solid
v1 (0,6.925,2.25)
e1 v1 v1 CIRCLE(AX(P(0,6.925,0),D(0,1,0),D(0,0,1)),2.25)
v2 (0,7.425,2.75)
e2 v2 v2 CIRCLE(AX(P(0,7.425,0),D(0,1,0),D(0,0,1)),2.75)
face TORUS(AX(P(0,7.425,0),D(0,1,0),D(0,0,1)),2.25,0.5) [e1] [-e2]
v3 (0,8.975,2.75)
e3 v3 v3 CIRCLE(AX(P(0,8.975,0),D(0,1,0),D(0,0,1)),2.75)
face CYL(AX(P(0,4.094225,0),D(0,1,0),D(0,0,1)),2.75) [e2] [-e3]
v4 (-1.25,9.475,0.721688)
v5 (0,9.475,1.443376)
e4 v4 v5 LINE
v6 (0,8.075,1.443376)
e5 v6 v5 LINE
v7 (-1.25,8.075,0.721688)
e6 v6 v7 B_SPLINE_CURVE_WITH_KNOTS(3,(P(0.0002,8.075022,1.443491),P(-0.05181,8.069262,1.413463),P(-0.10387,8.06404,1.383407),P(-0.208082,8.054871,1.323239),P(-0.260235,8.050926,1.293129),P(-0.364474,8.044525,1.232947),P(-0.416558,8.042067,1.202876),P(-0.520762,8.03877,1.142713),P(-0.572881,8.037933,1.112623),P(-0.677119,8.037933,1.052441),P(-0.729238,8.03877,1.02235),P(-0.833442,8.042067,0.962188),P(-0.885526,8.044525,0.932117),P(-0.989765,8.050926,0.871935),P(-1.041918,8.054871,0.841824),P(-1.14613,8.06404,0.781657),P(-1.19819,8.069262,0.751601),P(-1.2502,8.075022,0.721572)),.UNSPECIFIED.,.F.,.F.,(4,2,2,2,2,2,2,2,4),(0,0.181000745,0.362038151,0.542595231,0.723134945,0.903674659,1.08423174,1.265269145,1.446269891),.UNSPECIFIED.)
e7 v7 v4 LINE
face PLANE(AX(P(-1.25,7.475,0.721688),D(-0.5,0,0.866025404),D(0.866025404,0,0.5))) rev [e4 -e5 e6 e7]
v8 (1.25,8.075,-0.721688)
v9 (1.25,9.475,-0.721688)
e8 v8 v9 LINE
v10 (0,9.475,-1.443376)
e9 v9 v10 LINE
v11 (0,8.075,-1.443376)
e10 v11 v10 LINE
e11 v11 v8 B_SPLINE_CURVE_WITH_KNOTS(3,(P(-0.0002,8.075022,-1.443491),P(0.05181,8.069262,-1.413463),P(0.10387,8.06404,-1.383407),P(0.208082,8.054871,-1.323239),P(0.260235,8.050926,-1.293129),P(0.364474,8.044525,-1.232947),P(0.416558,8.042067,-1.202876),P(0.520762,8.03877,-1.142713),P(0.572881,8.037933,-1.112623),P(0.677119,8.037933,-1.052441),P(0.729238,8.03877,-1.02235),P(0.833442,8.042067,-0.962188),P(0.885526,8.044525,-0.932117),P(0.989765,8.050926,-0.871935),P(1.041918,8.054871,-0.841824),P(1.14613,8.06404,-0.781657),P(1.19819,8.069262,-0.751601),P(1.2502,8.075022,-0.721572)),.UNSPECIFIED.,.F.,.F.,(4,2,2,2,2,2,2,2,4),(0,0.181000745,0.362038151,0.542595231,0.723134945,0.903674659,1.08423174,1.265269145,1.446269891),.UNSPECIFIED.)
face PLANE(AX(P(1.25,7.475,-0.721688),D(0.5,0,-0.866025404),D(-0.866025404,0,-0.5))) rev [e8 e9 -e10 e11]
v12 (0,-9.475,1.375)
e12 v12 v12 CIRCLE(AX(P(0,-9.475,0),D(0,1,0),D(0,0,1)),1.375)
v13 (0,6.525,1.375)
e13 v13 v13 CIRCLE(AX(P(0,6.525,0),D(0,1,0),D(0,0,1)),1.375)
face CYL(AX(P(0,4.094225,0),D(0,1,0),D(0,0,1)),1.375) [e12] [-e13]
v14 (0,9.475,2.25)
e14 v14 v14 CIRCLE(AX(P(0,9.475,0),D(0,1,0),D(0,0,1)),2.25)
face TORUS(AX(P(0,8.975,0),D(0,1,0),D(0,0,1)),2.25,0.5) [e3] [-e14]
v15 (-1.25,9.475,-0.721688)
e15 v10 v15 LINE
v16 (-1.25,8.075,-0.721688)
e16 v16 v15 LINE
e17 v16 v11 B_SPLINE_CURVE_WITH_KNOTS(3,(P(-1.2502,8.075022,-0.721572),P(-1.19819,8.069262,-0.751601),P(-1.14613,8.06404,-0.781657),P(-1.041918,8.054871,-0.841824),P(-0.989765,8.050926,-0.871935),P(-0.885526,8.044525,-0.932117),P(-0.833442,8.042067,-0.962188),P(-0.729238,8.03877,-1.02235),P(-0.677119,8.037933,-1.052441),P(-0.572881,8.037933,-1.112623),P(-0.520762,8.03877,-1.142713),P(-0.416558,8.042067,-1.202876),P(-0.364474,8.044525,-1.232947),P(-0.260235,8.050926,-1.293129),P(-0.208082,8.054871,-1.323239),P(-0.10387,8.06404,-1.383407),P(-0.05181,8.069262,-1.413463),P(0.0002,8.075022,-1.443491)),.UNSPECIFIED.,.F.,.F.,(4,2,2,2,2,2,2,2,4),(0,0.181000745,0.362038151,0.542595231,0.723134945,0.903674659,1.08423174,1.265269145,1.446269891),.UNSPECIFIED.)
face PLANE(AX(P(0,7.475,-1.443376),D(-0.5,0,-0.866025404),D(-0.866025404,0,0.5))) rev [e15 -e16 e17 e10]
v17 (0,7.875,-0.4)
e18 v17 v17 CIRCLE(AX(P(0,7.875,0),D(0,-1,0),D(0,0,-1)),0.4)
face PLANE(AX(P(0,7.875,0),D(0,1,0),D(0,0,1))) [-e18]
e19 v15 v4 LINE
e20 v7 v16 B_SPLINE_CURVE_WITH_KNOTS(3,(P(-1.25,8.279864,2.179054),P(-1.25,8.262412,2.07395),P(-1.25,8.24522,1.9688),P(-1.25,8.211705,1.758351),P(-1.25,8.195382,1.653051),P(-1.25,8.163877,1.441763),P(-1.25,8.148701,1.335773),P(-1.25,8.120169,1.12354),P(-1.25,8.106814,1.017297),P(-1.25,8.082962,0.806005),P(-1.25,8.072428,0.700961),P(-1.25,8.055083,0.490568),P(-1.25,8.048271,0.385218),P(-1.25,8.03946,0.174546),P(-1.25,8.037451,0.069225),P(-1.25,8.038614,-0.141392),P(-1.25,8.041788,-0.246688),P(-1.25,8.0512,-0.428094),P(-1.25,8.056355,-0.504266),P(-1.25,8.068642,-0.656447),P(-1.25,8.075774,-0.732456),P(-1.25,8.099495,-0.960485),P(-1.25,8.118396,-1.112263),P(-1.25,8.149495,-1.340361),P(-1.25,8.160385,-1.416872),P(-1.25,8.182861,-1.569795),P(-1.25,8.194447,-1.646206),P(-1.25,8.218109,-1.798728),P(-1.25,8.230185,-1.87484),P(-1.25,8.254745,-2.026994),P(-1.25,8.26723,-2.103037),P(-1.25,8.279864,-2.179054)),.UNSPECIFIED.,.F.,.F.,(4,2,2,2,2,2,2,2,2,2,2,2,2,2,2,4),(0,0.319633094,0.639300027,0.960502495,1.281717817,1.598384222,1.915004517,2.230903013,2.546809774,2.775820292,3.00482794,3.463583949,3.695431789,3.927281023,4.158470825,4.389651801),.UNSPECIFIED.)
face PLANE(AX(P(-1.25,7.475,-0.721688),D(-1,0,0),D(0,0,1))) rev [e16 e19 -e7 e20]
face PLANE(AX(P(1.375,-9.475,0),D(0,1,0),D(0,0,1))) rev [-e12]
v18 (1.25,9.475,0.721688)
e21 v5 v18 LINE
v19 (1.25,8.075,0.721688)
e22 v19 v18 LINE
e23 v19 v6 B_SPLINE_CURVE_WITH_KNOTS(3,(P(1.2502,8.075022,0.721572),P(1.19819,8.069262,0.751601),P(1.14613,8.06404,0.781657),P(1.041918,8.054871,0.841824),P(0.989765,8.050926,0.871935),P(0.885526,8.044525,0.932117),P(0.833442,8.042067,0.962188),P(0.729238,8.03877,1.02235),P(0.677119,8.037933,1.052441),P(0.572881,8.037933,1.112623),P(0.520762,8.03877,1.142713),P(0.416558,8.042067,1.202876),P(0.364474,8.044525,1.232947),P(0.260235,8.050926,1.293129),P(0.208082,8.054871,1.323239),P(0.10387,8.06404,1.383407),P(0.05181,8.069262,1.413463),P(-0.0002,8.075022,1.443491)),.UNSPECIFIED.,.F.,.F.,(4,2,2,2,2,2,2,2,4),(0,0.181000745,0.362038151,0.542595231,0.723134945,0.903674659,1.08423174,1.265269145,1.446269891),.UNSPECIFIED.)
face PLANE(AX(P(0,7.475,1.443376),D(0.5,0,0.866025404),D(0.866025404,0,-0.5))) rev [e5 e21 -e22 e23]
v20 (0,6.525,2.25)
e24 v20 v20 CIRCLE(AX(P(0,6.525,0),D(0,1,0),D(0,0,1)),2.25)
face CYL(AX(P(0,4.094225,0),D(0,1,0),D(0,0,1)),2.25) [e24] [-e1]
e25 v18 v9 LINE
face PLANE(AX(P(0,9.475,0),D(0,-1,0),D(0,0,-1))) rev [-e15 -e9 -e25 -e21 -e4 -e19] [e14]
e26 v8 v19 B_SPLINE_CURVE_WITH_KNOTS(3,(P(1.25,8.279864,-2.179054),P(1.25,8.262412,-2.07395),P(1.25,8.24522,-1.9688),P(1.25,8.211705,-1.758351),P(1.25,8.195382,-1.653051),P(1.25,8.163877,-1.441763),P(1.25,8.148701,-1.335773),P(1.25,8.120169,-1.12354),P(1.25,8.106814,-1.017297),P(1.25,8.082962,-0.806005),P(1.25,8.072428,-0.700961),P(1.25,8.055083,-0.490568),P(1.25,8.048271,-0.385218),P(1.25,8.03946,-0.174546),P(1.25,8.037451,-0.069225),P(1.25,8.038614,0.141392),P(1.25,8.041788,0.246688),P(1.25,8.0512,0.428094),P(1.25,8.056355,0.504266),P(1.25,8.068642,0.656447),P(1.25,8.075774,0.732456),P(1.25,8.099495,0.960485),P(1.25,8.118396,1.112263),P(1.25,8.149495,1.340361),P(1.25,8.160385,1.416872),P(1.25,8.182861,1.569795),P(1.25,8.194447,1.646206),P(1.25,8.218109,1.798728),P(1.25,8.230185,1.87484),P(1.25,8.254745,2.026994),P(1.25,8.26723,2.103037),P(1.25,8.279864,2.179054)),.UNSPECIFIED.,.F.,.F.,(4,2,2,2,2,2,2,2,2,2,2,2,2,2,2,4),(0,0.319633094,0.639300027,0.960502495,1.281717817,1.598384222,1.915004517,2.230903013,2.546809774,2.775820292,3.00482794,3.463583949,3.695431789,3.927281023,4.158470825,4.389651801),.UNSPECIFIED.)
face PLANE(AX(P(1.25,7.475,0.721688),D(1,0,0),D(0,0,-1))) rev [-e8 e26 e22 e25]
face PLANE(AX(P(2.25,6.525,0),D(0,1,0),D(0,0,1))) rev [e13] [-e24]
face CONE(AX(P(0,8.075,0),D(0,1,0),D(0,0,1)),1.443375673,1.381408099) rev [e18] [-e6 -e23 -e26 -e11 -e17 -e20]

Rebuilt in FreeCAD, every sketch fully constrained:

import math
import FreeCAD as App
import Part
import Sketcher
Q = App.Units.Quantity


def add_polygon(sketch, points):
    """Adds a closed chain of lines whose ends are joined by coincident constraints."""
    first, n = sketch.GeometryCount, len(points)
    for a, b in zip(points, points[1:] + points[:1]):
        sketch.addGeometry(Part.LineSegment(App.Vector(*a, 0), App.Vector(*b, 0)), False)
    for i in range(n):
        sketch.addConstraint(Sketcher.Constraint("Coincident", first + i, 2, first + (i + 1) % n, 1))

doc = App.newDocument("Part")
body = doc.addObject("PartDesign::Body", "Body")

# Sketch on XY plane
sketch1 = doc.addObject("Sketcher::SketchObject", "Sketch")
body.addObject(sketch1)
sketch1.AttachmentSupport = (doc.XY_Plane, [""])
sketch1.MapMode = "FlatFace"
sketch1.addGeometry([
    Part.LineSegment(App.Vector(2.25, 9.475, 0), App.Vector(0, 9.475, 0)),  # 0
    Part.LineSegment(App.Vector(0, 9.475, 0), App.Vector(0, -9.475, 0)),  # 1
    Part.LineSegment(App.Vector(0, -9.475, 0), App.Vector(1.375, -9.475, 0)),  # 2
    Part.LineSegment(App.Vector(1.375, -9.475, 0), App.Vector(1.375, 6.525, 0)),  # 3
    Part.LineSegment(App.Vector(1.375, 6.525, 0), App.Vector(2.25, 6.525, 0)),  # 4
    Part.LineSegment(App.Vector(2.25, 6.525, 0), App.Vector(2.25, 6.925, 0)),  # 5
    Part.ArcOfCircle(Part.Circle(App.Vector(2.25, 7.425, 0), App.Vector(0, 0, 1), 0.5), math.radians(-90), math.radians(0)),  # 6
    Part.LineSegment(App.Vector(2.75, 7.425, 0), App.Vector(2.75, 8.975, 0)),  # 7
    Part.ArcOfCircle(Part.Circle(App.Vector(2.25, 8.975, 0), App.Vector(0, 0, 1), 0.5), math.radians(0), math.radians(90)),  # 8
], False)
sketch1.addConstraint([
    Sketcher.Constraint("Coincident", 0, 2, 1, 1),
    Sketcher.Constraint("Coincident", 1, 2, 2, 1),
    Sketcher.Constraint("Coincident", 2, 2, 3, 1),
    Sketcher.Constraint("Coincident", 3, 2, 4, 1),
    Sketcher.Constraint("Coincident", 4, 2, 5, 1),
    Sketcher.Constraint("Coincident", 5, 2, 6, 1),
    Sketcher.Constraint("Tangent", 6, 2, 7, 1),
    Sketcher.Constraint("Tangent", 7, 2, 8, 1),
    Sketcher.Constraint("Tangent", 8, 2, 0, 1),
    Sketcher.Constraint("Horizontal", 0),
    Sketcher.Constraint("Vertical", 1),
    Sketcher.Constraint("Horizontal", 2),
    Sketcher.Constraint("Vertical", 3),
    Sketcher.Constraint("Horizontal", 4),
    Sketcher.Constraint("Vertical", 5),
    Sketcher.Constraint("Vertical", 7),
    Sketcher.Constraint("Equal", 6, 8),
    Sketcher.Constraint("Symmetric", 0, 2, 1, 2, -1, 1),
    Sketcher.Constraint("Vertical", 8, 3, 4, 2),
    Sketcher.Constraint("Radius", 6, Q("0.5 mm")),
    Sketcher.Constraint("DistanceY", 3, 1, 3, 2, Q("16 mm")),
    Sketcher.Constraint("DistanceY", 5, 1, 5, 2, Q("0.4 mm")),
    Sketcher.Constraint("DistanceX", 0, 2, 0, 1, Q("2.25 mm")),
    Sketcher.Constraint("DistanceY", 1, 2, 1, 1, Q("18.95 mm")),
    Sketcher.Constraint("DistanceX", 2, 1, 2, 2, Q("1.375 mm")),
])
revolution = doc.addObject("PartDesign::Revolution", "Revolution")
body.addObject(revolution)
revolution.Profile = sketch1
revolution.ReferenceAxis = (sketch1, ["V_Axis"])
revolution.Angle = 360
body2 = doc.addObject("PartDesign::Body", "Body001")

# Sketch on XZ plane
sketch2 = doc.addObject("Sketcher::SketchObject", "Sketch001")
body2.addObject(sketch2)
sketch2.AttachmentSupport = (doc.getObject("XZ_Plane001"), [""])
sketch2.MapMode = "FlatFace"
sketch2.AttachmentOffset = App.Placement(App.Vector(0, 0, -9.475), App.Rotation())
add_polygon(sketch2, [(0, -1.443376), (-1.25, -0.721688), (-1.25, 0.721688), (0, 1.443376), (1.25, 0.721688), (1.25, -0.721688)])  # lines 0-5
sketch2.addConstraint([
    Sketcher.Constraint("Vertical", 1),
    Sketcher.Constraint("Vertical", 4),
    Sketcher.Constraint("Symmetric", 0, 2, 3, 2, -1, 1),
    Sketcher.Constraint("Symmetric", 2, 2, 5, 2, -1, 1),
    Sketcher.Constraint("PointOnObject", 2, 2, -2),
    Sketcher.Constraint("Parallel", 2, 5),
    Sketcher.Constraint("Horizontal", 1, 2, 3, 2),
    Sketcher.Constraint("Angle", 0, Q("150 deg")),
    Sketcher.Constraint("DistanceX", 1, 2, 3, 2, Q("2.5 mm")),
    Sketcher.Constraint("DistanceY", 1, 1, 1, 2, Q("1.443376 mm")),
])
pad1 = doc.addObject("PartDesign::Pad", "Pad")
body2.addObject(pad1)
pad1.Profile = sketch2
pad1.Length = 2

# Sketch on YZ plane
sketch3 = doc.addObject("Sketcher::SketchObject", "Sketch002")
body2.addObject(sketch3)
sketch3.AttachmentSupport = (doc.getObject("YZ_Plane001"), [""])
sketch3.MapMode = "FlatFace"
add_polygon(sketch3, [(7.875, -0.4), (7.875, 0), (7.475, 0), (7.475, -1.443376), (8.075, -1.443376)])  # lines 0-4
sketch3.addConstraint([
    Sketcher.Constraint("Vertical", 0),
    Sketcher.Constraint("Horizontal", 1),
    Sketcher.Constraint("Vertical", 2),
    Sketcher.Constraint("Horizontal", 3),
    Sketcher.Constraint("PointOnObject", 0, 2, -1),
    Sketcher.Constraint("Equal", 1, 0),
    Sketcher.Constraint("DistanceX", 1, 2, 1, 1, Q("0.4 mm")),
    Sketcher.Constraint("DistanceX", 3, 1, 3, 2, Q("0.6 mm")),
    Sketcher.Constraint("DistanceX", -1, 1, 0, 2, Q("7.875 mm")),
    Sketcher.Constraint("Distance", 4, Q("1.062371 mm")),
])
groove = doc.addObject("PartDesign::Groove", "Groove")
body2.addObject(groove)
groove.Profile = sketch3
groove.ReferenceAxis = (sketch3, ["H_Axis"])
groove.Angle = 360
doc.recompute()

boolean = doc.addObject("PartDesign::Boolean", "Boolean")
body.addObject(boolean)
boolean.Type = "Cut"
boolean.addObjects([body2])

doc.recompute()
